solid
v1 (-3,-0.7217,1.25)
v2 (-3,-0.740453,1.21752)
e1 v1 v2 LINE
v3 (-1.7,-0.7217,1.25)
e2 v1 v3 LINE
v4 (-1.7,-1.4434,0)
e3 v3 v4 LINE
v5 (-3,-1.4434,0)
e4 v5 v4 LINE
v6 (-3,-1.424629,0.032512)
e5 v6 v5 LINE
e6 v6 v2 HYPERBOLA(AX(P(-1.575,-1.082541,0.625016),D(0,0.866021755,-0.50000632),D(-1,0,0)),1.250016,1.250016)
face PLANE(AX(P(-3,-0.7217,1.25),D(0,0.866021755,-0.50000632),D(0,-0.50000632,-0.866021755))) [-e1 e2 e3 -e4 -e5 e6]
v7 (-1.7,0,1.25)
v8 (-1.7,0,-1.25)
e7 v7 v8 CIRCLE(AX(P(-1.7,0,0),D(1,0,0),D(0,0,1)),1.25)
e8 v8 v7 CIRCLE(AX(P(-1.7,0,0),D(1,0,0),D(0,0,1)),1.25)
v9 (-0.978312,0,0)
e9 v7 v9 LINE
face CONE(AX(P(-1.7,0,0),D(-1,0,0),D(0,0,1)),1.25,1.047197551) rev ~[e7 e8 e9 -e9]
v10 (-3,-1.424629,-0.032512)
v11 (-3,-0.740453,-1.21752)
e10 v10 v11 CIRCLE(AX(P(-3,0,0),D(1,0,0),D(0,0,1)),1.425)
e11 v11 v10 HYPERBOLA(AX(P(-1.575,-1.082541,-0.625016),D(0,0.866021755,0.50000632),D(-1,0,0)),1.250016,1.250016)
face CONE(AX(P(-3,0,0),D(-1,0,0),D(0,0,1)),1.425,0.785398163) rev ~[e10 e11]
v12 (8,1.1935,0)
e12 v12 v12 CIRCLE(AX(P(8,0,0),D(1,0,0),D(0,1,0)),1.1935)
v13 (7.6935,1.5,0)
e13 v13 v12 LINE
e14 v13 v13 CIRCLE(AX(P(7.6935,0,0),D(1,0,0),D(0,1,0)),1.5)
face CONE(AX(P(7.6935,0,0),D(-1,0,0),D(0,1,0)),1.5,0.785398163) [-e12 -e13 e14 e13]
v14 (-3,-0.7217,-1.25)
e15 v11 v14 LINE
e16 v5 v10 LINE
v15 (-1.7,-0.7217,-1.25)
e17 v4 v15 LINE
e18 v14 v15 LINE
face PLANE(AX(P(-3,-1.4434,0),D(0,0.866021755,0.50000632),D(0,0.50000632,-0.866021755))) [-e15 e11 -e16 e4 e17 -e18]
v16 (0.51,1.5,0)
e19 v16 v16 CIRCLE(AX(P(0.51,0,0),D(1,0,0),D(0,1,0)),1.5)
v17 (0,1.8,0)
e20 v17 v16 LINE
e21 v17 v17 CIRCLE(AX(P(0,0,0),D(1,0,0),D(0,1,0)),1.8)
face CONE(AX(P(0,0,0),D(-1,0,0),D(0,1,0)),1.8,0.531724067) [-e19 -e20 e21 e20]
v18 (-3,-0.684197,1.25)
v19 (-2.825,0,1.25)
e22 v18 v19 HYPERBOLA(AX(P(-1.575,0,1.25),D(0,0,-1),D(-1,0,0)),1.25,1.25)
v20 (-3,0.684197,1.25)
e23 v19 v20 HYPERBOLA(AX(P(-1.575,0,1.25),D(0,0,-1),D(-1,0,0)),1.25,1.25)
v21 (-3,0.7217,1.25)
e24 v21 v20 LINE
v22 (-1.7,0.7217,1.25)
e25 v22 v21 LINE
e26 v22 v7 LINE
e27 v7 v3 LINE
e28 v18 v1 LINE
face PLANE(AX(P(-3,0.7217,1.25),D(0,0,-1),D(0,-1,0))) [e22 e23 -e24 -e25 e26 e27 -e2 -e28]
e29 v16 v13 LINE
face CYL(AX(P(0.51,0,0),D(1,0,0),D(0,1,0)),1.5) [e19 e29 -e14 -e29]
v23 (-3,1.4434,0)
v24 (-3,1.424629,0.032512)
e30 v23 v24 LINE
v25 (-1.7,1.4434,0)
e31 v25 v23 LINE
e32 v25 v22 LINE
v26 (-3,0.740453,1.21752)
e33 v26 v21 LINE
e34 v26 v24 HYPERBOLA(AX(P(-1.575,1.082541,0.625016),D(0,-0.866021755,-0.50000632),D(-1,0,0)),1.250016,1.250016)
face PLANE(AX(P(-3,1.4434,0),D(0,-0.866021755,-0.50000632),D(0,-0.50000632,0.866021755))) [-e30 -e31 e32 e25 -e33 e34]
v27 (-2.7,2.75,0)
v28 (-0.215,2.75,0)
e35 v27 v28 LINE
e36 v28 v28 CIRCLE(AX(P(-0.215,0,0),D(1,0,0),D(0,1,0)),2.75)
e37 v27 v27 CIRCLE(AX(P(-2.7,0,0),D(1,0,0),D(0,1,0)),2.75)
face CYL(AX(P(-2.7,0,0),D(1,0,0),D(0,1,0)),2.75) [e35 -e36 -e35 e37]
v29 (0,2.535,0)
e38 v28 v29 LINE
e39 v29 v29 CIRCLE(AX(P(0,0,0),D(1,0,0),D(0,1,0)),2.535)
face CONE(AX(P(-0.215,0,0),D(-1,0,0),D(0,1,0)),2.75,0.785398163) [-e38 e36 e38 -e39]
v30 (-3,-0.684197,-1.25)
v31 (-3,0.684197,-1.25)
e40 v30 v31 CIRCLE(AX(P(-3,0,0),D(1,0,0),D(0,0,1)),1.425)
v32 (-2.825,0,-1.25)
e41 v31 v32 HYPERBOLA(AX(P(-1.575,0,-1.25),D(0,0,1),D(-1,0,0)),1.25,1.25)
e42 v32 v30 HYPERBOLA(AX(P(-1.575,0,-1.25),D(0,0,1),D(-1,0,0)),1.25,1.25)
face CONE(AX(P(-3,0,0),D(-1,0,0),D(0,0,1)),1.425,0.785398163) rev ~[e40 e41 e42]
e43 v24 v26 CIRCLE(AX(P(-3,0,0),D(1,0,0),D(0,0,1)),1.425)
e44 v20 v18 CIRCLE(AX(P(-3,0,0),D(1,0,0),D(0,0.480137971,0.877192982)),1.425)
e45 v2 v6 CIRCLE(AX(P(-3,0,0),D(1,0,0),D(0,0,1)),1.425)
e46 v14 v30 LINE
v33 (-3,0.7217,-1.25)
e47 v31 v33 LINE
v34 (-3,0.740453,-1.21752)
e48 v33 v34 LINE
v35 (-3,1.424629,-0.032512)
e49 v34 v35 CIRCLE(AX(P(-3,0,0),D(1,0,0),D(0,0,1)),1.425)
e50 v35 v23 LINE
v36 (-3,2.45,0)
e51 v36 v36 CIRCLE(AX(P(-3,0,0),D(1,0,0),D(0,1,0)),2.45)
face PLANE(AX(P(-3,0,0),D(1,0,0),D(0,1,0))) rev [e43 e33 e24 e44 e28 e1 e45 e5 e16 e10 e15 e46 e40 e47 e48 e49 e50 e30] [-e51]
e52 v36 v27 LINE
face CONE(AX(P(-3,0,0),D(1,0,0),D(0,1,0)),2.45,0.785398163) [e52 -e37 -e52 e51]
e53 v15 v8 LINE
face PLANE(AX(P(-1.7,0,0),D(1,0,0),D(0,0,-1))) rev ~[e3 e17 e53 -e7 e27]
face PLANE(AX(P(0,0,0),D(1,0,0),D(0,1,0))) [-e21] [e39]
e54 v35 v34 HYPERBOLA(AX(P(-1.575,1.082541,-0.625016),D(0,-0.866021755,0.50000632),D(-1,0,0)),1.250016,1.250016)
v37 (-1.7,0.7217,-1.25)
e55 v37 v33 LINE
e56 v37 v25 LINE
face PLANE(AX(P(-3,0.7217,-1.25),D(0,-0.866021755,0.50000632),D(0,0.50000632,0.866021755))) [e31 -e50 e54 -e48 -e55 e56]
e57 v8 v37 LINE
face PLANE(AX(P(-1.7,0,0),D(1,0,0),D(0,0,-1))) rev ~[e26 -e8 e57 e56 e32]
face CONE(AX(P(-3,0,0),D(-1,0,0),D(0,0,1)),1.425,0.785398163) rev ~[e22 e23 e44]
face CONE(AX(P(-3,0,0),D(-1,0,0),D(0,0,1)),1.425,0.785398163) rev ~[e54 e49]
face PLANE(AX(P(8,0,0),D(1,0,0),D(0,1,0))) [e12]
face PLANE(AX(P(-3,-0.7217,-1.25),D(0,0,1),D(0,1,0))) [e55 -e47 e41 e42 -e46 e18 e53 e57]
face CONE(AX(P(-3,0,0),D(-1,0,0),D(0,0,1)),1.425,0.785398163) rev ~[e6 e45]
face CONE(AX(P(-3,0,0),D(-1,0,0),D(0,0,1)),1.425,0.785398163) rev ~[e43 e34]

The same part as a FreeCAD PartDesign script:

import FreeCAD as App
import Part
import Sketcher

V = App.Vector
Q = App.Units.Quantity

doc = App.newDocument("Part")
body = doc.addObject("PartDesign::Body", "Body")

sketch1 = body.newObject("Sketcher::SketchObject", "Sketch")
sketch1.AttachmentSupport = (doc.getObject("XY_Plane"), [""])
sketch1.MapMode = "FlatFace"
sketch1.addGeometry([
    Part.LineSegment(V(-3, 0, 0), V(8, 0, 0)),
    Part.LineSegment(V(8, 0, 0), V(8, 1.19, 0)),
    Part.LineSegment(V(8, 1.19, 0), V(7.69, 1.5, 0)),
    Part.LineSegment(V(7.69, 1.5, 0), V(0.51, 1.5, 0)),
    Part.LineSegment(V(0.51, 1.5, 0), V(0, 1.8, 0)),
    Part.LineSegment(V(0, 1.8, 0), V(0, 2.75, 0)),
    Part.LineSegment(V(0, 2.75, 0), V(-3, 2.75, 0)),
    Part.LineSegment(V(-3, 2.75, 0), V(-3, 0, 0)),
], False)
sketch1.addConstraint([
    Sketcher.Constraint("Coincident", 0, 2, 1, 1),
    Sketcher.Constraint("Coincident", 1, 2, 2, 1),
    Sketcher.Constraint("Coincident", 2, 2, 3, 1),
    Sketcher.Constraint("Coincident", 3, 2, 4, 1),
    Sketcher.Constraint("Coincident", 4, 2, 5, 1),
    Sketcher.Constraint("Coincident", 5, 2, 6, 1),
    Sketcher.Constraint("Coincident", 6, 2, 7, 1),
    Sketcher.Constraint("Coincident", 7, 2, 0, 1),
    Sketcher.Constraint("Horizontal", 0),
    Sketcher.Constraint("Vertical", 1),
    Sketcher.Constraint("Horizontal", 3),
    Sketcher.Constraint("Vertical", 5),
    Sketcher.Constraint("Horizontal", 6),
    Sketcher.Constraint("Vertical", 7),
    Sketcher.Constraint("PointOnObject", 0, 2, -1),
    Sketcher.Constraint("PointOnObject", 4, 2, -2),
    Sketcher.Constraint("DistanceX", 0, 1, 0, 2, Q("11 mm")),
    Sketcher.Constraint("DistanceX", 6, 2, 6, 1, Q("3 mm")),
    Sketcher.Constraint("Angle", 2, Q("135 deg")),
    Sketcher.Constraint("DistanceY", 5, 1, 5, 2, Q("0.95 mm")),
    Sketcher.Constraint("DistanceY", 7, 2, 7, 1, Q("2.75 mm")),
    Sketcher.Constraint("DistanceY", -1, 1, 2, 2, Q("1.5 mm")),
    Sketcher.Constraint("DistanceX", -1, 1, 3, 2, Q("0.51 mm")),
    Sketcher.Constraint("DistanceX", 3, 2, 3, 1, Q("7.1835 mm")),
])
revolution = body.newObject("PartDesign::Revolution", "Revolution")
revolution.Profile = sketch1
revolution.ReferenceAxis = (sketch1, ["H_Axis"])
revolution.Angle = 360

sketch2 = body.newObject("Sketcher::SketchObject", "Sketch001")
sketch2.AttachmentSupport = (doc.getObject("XY_Plane"), [""])
sketch2.MapMode = "FlatFace"
sketch2.addGeometry([
    Part.LineSegment(V(0, 3.3, 0), V(-3, 3.3, 0)),
    Part.LineSegment(V(-3, 3.3, 0), V(-3, 2.45, 0)),
    Part.LineSegment(V(-3, 2.45, 0), V(-2.7, 2.75, 0)),
    Part.LineSegment(V(-2.7, 2.75, 0), V(-0.21, 2.75, 0)),
    Part.LineSegment(V(-0.21, 2.75, 0), V(0, 2.54, 0)),
    Part.LineSegment(V(0, 2.54, 0), V(0, 3.3, 0)),
], False)
sketch2.addConstraint([
    Sketcher.Constraint("Coincident", 0, 2, 1, 1),
    Sketcher.Constraint("Coincident", 1, 2, 2, 1),
    Sketcher.Constraint("Coincident", 2, 2, 3, 1),
    Sketcher.Constraint("Coincident", 3, 2, 4, 1),
    Sketcher.Constraint("Coincident", 4, 2, 5, 1),
    Sketcher.Constraint("Coincident", 5, 2, 0, 1),
    Sketcher.Constraint("Horizontal", 0),
    Sketcher.Constraint("Vertical", 1),
    Sketcher.Constraint("Horizontal", 3),
    Sketcher.Constraint("Vertical", 5),
    Sketcher.Constraint("PointOnObject", 4, 2, -2),
    Sketcher.Constraint("Perpendicular", 2, 4),
    Sketcher.Constraint("DistanceX", 0, 2, 0, 1, Q("3 mm")),
    Sketcher.Constraint("Angle", 2, Q("45 deg")),
    Sketcher.Constraint("DistanceY", 1, 2, 1, 1, Q("0.85 mm")),
    Sketcher.Constraint("DistanceY", -1, 1, 0, 2, Q("3.3 mm")),
    Sketcher.Constraint("DistanceX", 2, 2, -1, 1, Q("2.7 mm")),
    Sketcher.Constraint("DistanceX", 3, 1, 3, 2, Q("2.485 mm")),
])
groove = body.newObject("PartDesign::Groove", "Groove")
groove.Profile = sketch2
groove.ReferenceAxis = (sketch2, ["H_Axis"])
groove.Angle = 360

sketch3 = body.newObject("Sketcher::SketchObject", "Sketch002")
sketch3.AttachmentSupport = (doc.getObject("YZ_Plane"), [""])
sketch3.MapMode = "FlatFace"
sketch3.AttachmentOffset = App.Placement(V(0, 0, -3), App.Rotation())
sketch3.addGeometry(Part.Circle(V(0, 0, 0), V(0, 0, 1), 1.2), False)
sketch3.addConstraint([
    Sketcher.Constraint("Coincident", 0, 3, -1, 1),
    Sketcher.Constraint("Diameter", 0, Q("2.5 mm")),
])
doc.recompute()
hole = body.newObject("PartDesign::Hole", "Hole")
hole.Profile = sketch3
hole.ThreadType = "None"
hole.Diameter = 2.5
hole.DepthType = "Dimension"
hole.Depth = 1.3
hole.DrillPoint = "Angled"
hole.DrillPointAngle = 120
hole.HoleCutType = "Countersink"
hole.HoleCutDiameter = 2.85
hole.HoleCutCountersinkAngle = 90
hole.Reversed = True

sketch4 = body.newObject("Sketcher::SketchObject", "Sketch003")
sketch4.AttachmentSupport = (doc.getObject("YZ_Plane"), [""])
sketch4.MapMode = "FlatFace"
sketch4.AttachmentOffset = App.Placement(V(0, 0, -3), App.Rotation())
sketch4.addGeometry([
    Part.LineSegment(V(0.7, 1.2, 0), V(-0.7, 1.2, 0)),
    Part.LineSegment(V(-0.7, 1.2, 0), V(-1.4, 0, 0)),
    Part.LineSegment(V(-1.4, 0, 0), V(-0.7, -1.2, 0)),
    Part.LineSegment(V(-0.7, -1.2, 0), V(0.7, -1.2, 0)),
    Part.LineSegment(V(0.7, -1.2, 0), V(1.4, 0, 0)),
    Part.LineSegment(V(1.4, 0, 0), V(0.7, 1.2, 0)),
], False)
sketch4.addConstraint([
    Sketcher.Constraint("Coincident", 0, 2, 1, 1),
    Sketcher.Constraint("Coincident", 1, 2, 2, 1),
    Sketcher.Constraint("Coincident", 2, 2, 3, 1),
    Sketcher.Constraint("Coincident", 3, 2, 4, 1),
    Sketcher.Constraint("Coincident", 4, 2, 5, 1),
    Sketcher.Constraint("Coincident", 5, 2, 0, 1),
    Sketcher.Constraint("Horizontal", 0),
    Sketcher.Constraint("Horizontal", 3),
    Sketcher.Constraint("Symmetric", 0, 2, 3, 2, -1, 1),
    Sketcher.Constraint("Symmetric", 1, 2, 4, 2, -1, 1),
    Sketcher.Constraint("PointOnObject", 1, 2, -1),
    Sketcher.Constraint("Parallel", 2, 5),
    Sketcher.Constraint("Vertical", 0, 2, 2, 2),
    Sketcher.Constraint("Angle", 1, Q("-120.0004 deg")),
    Sketcher.Constraint("DistanceY", 2, 2, 0, 2, Q("2.5 mm")),
    Sketcher.Constraint("DistanceX", 0, 2, 0, 1, Q("1.4434 mm")),
])
pocket1 = body.newObject("PartDesign::Pocket", "Pocket")
pocket1.Profile = sketch4
pocket1.Length = 2.6
pocket1.Midplane = True

doc.recompute()
